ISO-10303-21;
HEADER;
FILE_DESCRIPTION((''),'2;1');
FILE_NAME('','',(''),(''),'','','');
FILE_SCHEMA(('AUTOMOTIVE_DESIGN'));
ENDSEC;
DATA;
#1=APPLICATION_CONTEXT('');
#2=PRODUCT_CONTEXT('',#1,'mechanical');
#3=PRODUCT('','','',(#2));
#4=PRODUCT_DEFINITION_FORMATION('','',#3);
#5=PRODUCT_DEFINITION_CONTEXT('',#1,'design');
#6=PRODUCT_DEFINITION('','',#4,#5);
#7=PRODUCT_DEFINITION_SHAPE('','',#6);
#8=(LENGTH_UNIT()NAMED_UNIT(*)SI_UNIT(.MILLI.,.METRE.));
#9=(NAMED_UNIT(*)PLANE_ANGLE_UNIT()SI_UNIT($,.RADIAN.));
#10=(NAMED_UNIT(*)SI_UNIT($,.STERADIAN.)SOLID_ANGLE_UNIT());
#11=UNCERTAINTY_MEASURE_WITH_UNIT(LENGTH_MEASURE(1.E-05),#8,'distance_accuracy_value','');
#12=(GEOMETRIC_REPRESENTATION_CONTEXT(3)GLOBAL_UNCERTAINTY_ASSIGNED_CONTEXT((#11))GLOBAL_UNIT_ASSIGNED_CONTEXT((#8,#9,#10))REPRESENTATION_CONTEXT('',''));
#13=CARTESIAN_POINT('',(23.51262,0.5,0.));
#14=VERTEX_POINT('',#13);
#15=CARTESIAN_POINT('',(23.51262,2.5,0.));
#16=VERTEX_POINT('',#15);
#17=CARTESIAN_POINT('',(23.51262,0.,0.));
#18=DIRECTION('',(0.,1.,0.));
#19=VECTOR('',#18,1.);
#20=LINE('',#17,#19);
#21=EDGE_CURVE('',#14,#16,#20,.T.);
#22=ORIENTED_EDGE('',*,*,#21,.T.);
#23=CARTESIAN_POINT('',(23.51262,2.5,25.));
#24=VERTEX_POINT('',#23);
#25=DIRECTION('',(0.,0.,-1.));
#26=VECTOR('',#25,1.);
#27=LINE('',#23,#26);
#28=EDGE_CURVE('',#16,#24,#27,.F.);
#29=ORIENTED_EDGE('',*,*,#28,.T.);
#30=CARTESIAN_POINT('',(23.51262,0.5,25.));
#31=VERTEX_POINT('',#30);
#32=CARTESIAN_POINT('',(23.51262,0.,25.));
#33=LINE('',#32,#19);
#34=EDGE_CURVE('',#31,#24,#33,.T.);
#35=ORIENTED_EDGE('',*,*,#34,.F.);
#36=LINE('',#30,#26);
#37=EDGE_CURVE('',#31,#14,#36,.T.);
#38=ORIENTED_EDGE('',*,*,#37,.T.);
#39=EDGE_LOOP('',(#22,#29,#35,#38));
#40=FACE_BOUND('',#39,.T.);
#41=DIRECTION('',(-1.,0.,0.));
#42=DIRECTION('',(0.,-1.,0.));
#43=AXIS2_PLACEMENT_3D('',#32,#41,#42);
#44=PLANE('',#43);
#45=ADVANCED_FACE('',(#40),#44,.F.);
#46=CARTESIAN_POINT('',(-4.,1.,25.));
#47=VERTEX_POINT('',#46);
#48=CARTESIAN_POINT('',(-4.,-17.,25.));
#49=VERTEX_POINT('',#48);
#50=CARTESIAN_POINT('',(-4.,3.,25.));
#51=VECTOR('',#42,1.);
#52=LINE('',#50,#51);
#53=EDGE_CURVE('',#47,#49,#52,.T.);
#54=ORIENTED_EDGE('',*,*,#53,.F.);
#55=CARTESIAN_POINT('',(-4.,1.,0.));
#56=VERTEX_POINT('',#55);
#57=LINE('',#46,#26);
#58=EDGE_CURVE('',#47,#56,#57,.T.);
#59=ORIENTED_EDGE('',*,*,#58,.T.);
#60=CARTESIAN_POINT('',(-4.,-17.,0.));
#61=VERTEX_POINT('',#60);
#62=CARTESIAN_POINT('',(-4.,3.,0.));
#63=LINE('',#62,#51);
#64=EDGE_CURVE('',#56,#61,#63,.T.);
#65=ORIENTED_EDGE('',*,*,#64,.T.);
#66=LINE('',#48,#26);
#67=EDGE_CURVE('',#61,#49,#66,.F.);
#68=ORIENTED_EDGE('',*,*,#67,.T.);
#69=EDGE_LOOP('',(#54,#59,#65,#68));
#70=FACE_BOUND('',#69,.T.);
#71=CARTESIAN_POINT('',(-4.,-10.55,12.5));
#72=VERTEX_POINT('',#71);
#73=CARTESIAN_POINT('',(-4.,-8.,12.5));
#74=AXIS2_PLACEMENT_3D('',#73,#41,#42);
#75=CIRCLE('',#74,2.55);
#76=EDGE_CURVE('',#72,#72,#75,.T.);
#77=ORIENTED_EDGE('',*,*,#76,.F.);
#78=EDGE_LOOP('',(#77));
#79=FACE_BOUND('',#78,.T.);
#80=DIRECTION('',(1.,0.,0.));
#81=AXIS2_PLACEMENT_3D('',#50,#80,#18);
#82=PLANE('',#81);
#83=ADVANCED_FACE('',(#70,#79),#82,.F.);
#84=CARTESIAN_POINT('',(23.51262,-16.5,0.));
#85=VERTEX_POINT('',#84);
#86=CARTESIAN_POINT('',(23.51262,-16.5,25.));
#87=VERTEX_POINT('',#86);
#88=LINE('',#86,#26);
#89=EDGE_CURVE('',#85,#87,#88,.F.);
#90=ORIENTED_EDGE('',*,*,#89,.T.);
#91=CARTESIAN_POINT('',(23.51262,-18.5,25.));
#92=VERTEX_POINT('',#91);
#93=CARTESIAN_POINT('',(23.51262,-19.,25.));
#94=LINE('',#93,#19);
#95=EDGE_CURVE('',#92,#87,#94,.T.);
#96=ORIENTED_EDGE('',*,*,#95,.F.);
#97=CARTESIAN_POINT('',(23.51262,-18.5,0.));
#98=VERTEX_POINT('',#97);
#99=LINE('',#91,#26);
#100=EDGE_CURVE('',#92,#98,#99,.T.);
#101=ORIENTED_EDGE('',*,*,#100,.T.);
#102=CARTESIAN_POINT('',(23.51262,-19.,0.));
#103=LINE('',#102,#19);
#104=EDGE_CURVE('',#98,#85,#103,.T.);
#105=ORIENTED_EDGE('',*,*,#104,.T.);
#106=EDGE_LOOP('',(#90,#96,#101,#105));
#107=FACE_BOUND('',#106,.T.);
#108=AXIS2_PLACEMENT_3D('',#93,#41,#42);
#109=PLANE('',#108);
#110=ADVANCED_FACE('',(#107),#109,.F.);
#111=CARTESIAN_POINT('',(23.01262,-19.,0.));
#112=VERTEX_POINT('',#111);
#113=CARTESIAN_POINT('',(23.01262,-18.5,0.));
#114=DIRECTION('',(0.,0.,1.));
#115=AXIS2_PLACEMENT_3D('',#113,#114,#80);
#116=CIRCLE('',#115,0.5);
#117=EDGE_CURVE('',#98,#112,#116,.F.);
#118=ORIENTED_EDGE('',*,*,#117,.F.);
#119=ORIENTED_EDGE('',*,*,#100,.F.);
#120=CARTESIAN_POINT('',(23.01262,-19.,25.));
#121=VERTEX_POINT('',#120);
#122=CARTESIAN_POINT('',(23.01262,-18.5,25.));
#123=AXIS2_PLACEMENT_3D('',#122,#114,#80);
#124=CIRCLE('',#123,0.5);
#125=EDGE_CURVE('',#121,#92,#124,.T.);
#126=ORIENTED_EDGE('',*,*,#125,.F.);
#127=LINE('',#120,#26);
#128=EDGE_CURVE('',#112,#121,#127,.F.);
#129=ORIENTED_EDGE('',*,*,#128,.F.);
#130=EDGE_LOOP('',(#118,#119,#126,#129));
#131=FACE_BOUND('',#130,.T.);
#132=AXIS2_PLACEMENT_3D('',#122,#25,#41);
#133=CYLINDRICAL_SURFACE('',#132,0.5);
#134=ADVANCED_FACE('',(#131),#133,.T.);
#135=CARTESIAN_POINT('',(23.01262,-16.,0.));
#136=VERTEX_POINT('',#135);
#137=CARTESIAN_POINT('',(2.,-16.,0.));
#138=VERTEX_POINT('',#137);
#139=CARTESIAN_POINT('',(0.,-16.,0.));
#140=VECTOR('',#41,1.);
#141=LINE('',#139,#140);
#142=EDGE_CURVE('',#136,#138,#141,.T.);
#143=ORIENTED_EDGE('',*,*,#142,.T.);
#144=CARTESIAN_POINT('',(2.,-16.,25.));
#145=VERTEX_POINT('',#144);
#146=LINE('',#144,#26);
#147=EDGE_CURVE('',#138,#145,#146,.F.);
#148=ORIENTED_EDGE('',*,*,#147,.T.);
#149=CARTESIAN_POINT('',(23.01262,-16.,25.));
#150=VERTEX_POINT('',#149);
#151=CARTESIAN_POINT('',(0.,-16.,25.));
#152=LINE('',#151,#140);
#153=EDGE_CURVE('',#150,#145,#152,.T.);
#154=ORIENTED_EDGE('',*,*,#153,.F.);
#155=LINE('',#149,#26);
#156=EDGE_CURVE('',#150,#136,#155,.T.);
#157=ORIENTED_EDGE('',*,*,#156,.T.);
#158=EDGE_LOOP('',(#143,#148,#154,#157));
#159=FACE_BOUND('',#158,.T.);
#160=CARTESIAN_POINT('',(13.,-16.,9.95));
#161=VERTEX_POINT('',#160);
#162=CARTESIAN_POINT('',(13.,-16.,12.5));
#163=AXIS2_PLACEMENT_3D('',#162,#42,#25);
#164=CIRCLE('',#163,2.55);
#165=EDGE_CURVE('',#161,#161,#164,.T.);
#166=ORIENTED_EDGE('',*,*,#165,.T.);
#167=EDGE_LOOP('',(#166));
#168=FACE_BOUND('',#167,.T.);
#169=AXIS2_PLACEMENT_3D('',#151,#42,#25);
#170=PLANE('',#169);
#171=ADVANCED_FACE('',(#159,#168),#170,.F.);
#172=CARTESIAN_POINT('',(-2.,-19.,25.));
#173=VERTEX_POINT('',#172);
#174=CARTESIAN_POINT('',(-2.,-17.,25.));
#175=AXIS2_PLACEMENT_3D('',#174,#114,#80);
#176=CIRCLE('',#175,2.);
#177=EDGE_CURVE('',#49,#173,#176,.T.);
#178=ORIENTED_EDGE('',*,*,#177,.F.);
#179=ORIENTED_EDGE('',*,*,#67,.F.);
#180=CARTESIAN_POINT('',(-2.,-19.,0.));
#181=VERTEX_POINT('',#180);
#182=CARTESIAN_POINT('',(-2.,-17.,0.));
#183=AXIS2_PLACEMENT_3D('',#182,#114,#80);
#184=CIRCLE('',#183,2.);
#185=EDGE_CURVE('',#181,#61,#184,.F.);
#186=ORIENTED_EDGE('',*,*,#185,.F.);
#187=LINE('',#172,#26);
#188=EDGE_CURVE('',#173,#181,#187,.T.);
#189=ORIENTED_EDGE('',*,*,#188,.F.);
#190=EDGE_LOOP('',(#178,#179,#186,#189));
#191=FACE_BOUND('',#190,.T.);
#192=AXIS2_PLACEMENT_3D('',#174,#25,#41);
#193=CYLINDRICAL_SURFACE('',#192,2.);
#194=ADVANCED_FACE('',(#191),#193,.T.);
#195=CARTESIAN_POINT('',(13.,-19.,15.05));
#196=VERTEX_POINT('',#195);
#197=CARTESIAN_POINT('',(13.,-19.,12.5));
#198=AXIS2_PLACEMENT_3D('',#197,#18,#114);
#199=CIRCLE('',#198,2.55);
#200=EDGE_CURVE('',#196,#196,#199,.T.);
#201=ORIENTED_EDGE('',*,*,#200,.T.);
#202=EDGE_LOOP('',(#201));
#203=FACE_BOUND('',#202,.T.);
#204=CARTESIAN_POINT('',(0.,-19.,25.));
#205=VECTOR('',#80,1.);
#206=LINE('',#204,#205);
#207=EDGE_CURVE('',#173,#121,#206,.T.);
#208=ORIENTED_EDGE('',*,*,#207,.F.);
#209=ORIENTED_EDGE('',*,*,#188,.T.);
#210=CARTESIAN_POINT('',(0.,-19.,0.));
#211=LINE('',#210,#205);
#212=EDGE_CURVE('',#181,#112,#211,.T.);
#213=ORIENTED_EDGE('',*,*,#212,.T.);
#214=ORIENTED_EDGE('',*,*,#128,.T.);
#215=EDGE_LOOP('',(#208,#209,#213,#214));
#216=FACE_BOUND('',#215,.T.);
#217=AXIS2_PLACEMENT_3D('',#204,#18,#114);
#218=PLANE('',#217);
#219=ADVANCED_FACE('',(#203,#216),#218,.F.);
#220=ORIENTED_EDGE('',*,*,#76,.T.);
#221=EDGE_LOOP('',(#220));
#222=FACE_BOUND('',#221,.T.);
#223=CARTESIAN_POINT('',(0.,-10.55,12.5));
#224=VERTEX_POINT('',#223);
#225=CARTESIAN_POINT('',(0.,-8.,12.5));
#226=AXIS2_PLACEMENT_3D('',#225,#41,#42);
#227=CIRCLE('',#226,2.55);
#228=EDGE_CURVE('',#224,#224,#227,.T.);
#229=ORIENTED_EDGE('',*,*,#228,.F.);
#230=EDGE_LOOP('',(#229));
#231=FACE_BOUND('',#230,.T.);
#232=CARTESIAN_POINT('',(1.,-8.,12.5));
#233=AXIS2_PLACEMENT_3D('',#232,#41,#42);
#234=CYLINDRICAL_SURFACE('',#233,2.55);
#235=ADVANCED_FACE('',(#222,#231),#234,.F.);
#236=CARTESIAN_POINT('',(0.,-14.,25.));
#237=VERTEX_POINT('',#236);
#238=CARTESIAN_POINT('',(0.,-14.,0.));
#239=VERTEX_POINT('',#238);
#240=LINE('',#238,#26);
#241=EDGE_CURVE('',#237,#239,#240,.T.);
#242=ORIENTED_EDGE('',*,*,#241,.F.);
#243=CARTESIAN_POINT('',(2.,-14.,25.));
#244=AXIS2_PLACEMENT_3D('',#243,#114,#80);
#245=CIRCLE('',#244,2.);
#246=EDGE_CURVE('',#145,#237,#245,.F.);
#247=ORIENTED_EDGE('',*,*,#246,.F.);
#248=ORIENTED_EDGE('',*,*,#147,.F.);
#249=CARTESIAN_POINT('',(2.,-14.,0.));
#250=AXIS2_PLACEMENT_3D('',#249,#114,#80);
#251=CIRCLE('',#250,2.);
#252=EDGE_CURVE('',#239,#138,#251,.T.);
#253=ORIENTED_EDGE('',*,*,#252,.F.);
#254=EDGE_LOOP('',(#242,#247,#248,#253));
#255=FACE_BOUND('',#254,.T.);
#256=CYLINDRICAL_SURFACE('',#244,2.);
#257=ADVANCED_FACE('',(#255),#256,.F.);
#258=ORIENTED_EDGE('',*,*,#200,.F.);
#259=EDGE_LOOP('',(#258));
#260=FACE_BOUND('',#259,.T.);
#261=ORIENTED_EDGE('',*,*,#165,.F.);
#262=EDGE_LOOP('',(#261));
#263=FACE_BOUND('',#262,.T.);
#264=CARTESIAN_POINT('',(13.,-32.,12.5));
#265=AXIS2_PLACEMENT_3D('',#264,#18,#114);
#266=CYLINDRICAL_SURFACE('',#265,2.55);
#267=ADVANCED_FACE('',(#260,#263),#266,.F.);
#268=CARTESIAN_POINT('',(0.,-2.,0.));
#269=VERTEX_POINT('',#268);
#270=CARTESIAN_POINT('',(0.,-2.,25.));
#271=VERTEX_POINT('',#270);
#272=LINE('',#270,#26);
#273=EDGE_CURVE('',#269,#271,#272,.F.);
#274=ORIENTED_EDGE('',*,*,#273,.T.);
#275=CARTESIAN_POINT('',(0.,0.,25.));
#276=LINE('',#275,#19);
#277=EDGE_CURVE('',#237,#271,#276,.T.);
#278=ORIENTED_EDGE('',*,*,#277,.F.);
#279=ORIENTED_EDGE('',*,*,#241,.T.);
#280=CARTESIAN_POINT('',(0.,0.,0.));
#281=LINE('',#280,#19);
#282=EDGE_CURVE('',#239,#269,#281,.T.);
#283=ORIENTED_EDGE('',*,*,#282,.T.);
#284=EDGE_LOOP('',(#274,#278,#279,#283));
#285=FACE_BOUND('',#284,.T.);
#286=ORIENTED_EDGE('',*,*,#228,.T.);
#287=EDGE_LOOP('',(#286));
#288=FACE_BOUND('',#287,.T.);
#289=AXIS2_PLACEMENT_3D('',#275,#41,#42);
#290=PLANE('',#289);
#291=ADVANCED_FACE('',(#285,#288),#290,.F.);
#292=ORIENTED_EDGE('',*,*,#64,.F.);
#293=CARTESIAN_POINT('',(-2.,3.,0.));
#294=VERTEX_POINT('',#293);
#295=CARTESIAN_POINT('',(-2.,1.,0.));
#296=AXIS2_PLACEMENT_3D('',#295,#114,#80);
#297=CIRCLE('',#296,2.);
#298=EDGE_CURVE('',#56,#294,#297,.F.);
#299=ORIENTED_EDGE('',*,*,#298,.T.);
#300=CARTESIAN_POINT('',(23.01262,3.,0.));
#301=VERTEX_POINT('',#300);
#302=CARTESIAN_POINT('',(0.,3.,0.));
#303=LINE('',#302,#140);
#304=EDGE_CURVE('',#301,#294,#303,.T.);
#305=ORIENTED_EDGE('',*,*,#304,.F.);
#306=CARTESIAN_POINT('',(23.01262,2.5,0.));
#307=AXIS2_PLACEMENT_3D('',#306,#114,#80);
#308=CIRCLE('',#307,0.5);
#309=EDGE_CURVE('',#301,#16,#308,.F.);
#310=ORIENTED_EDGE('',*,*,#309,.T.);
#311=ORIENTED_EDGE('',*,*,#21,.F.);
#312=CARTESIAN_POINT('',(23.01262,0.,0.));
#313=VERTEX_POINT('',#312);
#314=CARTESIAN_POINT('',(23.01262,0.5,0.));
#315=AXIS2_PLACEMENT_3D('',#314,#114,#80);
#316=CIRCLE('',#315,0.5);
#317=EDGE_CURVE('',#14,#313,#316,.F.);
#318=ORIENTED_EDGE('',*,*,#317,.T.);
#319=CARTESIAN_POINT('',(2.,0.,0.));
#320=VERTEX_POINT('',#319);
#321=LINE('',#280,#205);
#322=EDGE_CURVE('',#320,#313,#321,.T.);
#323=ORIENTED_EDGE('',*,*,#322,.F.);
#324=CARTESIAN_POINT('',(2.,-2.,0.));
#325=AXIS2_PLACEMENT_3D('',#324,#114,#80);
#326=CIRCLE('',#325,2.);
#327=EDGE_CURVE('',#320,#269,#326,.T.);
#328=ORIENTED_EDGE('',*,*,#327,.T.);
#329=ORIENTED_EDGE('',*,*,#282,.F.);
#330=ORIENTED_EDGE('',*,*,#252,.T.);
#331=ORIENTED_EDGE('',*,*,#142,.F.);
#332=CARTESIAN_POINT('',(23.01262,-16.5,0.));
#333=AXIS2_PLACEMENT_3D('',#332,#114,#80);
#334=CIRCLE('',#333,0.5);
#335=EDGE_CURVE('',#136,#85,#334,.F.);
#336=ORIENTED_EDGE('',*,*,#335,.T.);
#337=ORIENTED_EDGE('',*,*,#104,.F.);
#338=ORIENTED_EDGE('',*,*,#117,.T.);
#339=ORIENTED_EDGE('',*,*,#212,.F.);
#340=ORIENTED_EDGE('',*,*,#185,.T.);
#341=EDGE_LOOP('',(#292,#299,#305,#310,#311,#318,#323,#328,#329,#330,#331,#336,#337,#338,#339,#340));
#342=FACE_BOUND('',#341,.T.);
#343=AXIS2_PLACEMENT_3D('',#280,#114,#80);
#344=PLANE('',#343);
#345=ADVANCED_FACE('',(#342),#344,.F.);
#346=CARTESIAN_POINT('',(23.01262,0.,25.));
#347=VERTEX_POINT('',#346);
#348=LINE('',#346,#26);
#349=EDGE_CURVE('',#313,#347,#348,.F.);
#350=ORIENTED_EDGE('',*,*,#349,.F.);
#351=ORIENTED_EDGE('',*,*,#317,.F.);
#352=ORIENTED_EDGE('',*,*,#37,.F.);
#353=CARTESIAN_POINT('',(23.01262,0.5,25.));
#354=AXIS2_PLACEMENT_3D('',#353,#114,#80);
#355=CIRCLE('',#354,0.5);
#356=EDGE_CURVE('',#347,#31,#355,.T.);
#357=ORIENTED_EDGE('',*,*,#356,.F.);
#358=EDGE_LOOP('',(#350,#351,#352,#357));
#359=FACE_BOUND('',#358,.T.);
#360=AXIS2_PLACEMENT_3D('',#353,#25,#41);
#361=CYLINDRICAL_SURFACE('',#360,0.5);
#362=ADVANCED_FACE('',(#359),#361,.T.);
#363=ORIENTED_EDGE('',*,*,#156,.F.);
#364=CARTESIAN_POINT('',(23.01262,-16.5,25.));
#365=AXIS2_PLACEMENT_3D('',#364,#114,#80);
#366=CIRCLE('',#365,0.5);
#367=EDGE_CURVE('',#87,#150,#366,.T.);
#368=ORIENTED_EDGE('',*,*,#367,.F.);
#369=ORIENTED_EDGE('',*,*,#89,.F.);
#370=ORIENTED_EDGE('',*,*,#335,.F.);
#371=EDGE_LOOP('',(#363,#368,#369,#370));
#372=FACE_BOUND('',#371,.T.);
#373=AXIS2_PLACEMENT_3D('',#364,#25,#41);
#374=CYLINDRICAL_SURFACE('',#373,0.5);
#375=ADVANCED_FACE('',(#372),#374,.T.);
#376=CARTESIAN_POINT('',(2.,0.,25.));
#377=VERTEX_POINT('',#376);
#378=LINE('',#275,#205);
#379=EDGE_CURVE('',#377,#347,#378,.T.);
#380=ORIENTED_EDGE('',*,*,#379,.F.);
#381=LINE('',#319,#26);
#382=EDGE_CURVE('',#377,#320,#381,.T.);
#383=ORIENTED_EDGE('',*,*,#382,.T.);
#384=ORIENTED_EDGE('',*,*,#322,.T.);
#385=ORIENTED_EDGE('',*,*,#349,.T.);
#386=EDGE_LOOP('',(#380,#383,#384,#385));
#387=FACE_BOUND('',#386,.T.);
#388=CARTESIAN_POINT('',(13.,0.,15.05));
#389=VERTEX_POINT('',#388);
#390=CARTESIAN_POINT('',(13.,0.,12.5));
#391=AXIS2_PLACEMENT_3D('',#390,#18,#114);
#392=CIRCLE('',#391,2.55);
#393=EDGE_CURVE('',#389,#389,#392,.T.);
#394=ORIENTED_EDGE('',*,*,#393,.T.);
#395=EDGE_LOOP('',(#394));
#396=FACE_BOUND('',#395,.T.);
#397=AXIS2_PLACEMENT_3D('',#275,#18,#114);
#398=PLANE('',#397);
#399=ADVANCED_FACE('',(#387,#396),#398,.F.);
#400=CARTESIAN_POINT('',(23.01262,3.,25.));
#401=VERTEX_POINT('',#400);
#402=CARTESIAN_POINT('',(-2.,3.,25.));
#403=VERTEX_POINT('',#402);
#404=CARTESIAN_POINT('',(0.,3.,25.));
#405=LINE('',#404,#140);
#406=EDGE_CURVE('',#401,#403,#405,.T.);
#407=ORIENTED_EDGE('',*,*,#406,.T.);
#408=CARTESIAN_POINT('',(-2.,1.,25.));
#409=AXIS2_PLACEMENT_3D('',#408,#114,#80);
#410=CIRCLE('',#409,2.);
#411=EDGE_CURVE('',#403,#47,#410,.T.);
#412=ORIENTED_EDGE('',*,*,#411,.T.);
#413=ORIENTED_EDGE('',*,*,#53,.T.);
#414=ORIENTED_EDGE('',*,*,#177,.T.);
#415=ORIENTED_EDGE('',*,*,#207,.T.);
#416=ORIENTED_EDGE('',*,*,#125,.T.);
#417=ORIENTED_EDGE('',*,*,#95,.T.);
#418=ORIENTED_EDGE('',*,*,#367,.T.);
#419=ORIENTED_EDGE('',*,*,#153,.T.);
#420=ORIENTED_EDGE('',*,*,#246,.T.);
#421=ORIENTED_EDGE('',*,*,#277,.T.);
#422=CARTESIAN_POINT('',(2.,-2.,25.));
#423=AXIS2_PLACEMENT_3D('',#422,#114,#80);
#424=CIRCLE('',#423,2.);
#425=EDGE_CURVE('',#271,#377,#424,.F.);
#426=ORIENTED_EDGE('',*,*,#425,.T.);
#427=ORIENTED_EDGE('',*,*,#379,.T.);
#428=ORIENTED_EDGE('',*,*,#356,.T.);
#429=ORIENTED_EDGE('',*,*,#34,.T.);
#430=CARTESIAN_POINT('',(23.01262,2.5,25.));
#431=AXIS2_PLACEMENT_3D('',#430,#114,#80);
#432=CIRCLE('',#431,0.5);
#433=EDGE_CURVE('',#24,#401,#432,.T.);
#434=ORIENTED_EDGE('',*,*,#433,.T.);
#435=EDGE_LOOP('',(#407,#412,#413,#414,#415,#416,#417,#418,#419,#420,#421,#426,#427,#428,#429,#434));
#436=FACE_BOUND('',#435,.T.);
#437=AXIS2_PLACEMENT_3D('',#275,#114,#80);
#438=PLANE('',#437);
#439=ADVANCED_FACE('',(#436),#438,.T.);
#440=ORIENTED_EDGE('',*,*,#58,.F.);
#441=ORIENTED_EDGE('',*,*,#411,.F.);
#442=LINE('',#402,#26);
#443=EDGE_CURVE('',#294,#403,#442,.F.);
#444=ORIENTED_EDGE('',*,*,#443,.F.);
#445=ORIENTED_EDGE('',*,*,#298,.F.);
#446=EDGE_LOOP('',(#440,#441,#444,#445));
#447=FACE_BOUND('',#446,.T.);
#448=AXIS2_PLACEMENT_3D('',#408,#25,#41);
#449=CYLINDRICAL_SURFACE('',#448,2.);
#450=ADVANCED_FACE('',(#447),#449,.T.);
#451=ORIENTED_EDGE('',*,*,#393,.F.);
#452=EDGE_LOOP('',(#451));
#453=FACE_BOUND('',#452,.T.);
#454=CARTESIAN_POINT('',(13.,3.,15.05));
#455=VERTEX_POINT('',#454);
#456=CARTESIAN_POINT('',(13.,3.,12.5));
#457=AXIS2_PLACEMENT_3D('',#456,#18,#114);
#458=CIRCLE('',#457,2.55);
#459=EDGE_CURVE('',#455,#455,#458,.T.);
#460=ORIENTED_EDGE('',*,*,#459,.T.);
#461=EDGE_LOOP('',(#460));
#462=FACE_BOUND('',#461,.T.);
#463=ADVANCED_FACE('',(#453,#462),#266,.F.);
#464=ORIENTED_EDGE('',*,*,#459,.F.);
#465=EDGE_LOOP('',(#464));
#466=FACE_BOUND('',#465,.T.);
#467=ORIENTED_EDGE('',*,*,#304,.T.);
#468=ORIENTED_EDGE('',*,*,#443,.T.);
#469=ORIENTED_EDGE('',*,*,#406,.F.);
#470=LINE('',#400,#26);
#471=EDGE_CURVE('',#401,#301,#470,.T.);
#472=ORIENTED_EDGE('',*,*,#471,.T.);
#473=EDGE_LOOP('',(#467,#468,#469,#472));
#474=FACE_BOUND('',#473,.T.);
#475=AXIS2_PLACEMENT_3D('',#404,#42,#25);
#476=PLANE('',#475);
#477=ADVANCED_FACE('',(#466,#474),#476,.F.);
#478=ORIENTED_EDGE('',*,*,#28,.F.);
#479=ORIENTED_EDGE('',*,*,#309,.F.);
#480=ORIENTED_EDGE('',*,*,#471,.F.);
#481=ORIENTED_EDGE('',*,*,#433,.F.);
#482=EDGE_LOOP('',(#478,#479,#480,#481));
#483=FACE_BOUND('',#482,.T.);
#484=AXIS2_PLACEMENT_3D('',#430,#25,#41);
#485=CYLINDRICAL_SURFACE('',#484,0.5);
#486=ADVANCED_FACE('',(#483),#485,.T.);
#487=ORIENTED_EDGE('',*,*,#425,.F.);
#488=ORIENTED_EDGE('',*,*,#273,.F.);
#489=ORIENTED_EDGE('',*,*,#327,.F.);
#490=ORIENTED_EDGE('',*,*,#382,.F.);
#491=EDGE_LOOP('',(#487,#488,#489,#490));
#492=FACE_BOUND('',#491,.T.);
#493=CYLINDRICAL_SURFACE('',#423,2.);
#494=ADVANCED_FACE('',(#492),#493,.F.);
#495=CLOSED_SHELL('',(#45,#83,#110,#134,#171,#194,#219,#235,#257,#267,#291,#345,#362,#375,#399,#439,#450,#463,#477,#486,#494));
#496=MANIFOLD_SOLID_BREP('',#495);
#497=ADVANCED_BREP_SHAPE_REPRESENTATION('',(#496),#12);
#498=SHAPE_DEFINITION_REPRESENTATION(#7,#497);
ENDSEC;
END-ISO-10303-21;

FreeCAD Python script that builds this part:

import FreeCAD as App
import Part
import Sketcher

V = App.Vector


def edges_at(feature, points):
    """Names of the edges that pass closest to the given points."""
    edges = feature.Shape.Edges
    near = lambda p: min(range(len(edges)), key=lambda i: edges[i].distToShape(Part.Vertex(*p))[0])
    return sorted({f"Edge{near(p) + 1}" for p in points})


def add_polygon(sketch, points):
    """Adds a closed chain of lines whose ends are joined by coincident constraints."""
    first, n = sketch.GeometryCount, len(points)
    for a, b in zip(points, points[1:] + points[:1]):
        sketch.addGeometry(Part.LineSegment(App.Vector(*a, 0), App.Vector(*b, 0)), False)
    for i in range(n):
        sketch.addConstraint(Sketcher.Constraint("Coincident", first + i, 2, first + (i + 1) % n, 1))

doc = App.newDocument("Part")
body = doc.addObject("PartDesign::Body", "Body")

sketch1 = body.newObject("Sketcher::SketchObject", "Sketch")
sketch1.AttachmentSupport = (doc.getObject("XY_Plane"), [""])
sketch1.MapMode = "FlatFace"
add_polygon(sketch1, [(0, 0), (23.5, 0), (23.5, 3), (-4, 3), (-4, -19), (23.5, -19), (23.5, -16), (0, -16)])
sketch1.addConstraint(Sketcher.Constraint("Horizontal", 0))
sketch1.addConstraint(Sketcher.Constraint("Vertical", 1))
sketch1.addConstraint(Sketcher.Constraint("Horizontal", 2))
sketch1.addConstraint(Sketcher.Constraint("Vertical", 3))
sketch1.addConstraint(Sketcher.Constraint("Horizontal", 4))
sketch1.addConstraint(Sketcher.Constraint("Vertical", 5))
sketch1.addConstraint(Sketcher.Constraint("Horizontal", 6))
sketch1.addConstraint(Sketcher.Constraint("Vertical", 7))
sketch1.addConstraint(Sketcher.Constraint("Coincident", 7, 2, -1, 1))
sketch1.addConstraint(Sketcher.Constraint("Vertical", 1, 2, 4, 2))
sketch1.addConstraint(Sketcher.Constraint("Equal", 1, 5))
sketch1.addConstraint(Sketcher.Constraint("DistanceY", 1, 1, 1, 2, 3.0))
sketch1.addConstraint(Sketcher.Constraint("DistanceY", 3, 2, 3, 1, 22.0))
sketch1.addConstraint(Sketcher.Constraint("DistanceX", 2, 2, -1, 1, 4.0))
sketch1.addConstraint(Sketcher.Constraint("DistanceX", 0, 1, 0, 2, 23.51262))
pad1 = body.newObject("PartDesign::Pad", "Pad")
pad1.Profile = sketch1
pad1.Length = 25

sketch2 = body.newObject("Sketcher::SketchObject", "Sketch001")
sketch2.AttachmentSupport = (doc.getObject("YZ_Plane"), [""])
sketch2.MapMode = "FlatFace"
sketch2.AttachmentOffset = App.Placement(V(0, 0, -4), App.Rotation())
sketch2.addGeometry(Part.Circle(V(-8, 12.5, 0), V(0, 0, 1), 2.5), False)
sketch2.addConstraint(Sketcher.Constraint("Diameter", 0, 5.1))
sketch2.addConstraint(Sketcher.Constraint("DistanceX", 0, 3, -1, 1, 8.0))
sketch2.addConstraint(Sketcher.Constraint("DistanceY", -1, 1, 0, 3, 12.5))
pocket1 = body.newObject("PartDesign::Pocket", "Pocket")
pocket1.Profile = sketch2
pocket1.Length = 5
pocket1.Reversed = True
doc.recompute()

fillet = body.newObject("PartDesign::Fillet", "Fillet")
fillet.Base = (pocket1, edges_at(pocket1, [
    (0, -16, 12.5),
    (-4, -19, 12.5),
    (-4, 3, 12.5),
    (0, 0, 12.5),
]))
fillet.Radius = 2
doc.recompute()

fillet2 = body.newObject("PartDesign::Fillet", "Fillet001")
fillet2.Base = (fillet, edges_at(fillet, [
    (23.513, -16, 12.5),
    (23.513, -19, 12.5),
    (23.513, 3, 12.5),
    (23.513, 0, 12.5),
]))
fillet2.Radius = 0.5

sketch3 = body.newObject("Sketcher::SketchObject", "Sketch002")
sketch3.AttachmentSupport = (doc.getObject("XZ_Plane"), [""])
sketch3.MapMode = "FlatFace"
sketch3.AttachmentOffset = App.Placement(V(0, 0, -3), App.Rotation())
sketch3.addGeometry(Part.Circle(V(13, 12.5, 0), V(0, 0, 1), 2.5), False)
sketch3.addConstraint(Sketcher.Constraint("Diameter", 0, 5.1))
sketch3.addConstraint(Sketcher.Constraint("DistanceX", -1, 1, 0, 3, 13.0))
sketch3.addConstraint(Sketcher.Constraint("DistanceY", -1, 1, 0, 3, 12.5))
pocket2 = body.newObject("PartDesign::Pocket", "Pocket001")
pocket2.Profile = sketch3
pocket2.Length = 35
pocket2.Reversed = True

doc.recompute()
